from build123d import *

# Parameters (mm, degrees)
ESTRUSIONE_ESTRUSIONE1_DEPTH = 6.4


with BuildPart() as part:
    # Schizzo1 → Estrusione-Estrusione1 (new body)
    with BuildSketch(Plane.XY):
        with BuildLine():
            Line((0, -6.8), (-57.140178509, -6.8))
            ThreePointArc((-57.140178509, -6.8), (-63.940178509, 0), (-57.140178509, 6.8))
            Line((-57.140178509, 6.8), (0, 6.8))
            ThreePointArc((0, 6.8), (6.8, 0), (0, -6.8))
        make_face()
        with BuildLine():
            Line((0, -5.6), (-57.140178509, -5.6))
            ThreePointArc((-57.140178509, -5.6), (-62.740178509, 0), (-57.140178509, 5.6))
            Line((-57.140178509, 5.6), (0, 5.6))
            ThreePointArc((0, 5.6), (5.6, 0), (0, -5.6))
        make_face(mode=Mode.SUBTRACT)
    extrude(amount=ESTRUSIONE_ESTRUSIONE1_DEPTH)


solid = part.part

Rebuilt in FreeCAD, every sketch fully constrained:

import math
import FreeCAD as App
import Part
import Sketcher

V = App.Vector
Q = App.Units.Quantity

doc = App.newDocument("Part")
params = doc.addObject("Spreadsheet::Sheet", "Params")
for row, (alias, value) in enumerate([
    ("sketch1_radius", "6.8 mm"),
    ("sketch1_radius2", "5.6 mm"),
    ("pad1_length", "6.4 mm"),
], start=1):
    params.set(f"A{row}", alias)
    params.set(f"B{row}", "=" + value)
    params.setAlias(f"B{row}", alias)

body = doc.addObject("PartDesign::Body", "Body")

# Sketch on XY plane
sketch1 = body.newObject("Sketcher::SketchObject", "Sketch")
sketch1.AttachmentSupport = (doc.getObject("XY_Plane"), [""])
sketch1.MapMode = "FlatFace"
sketch1.addGeometry([
    Part.LineSegment(V(-57, -7, 0), V(0, -7, 0)),  # 0
    Part.ArcOfCircle(Part.Circle(V(0, 0, 0), V(0, 0, 1), 7), math.radians(-90), math.radians(90)),  # 1
    Part.LineSegment(V(0, 7, 0), V(-57, 7, 0)),  # 2
    Part.ArcOfCircle(Part.Circle(V(-57, 0, 0), V(0, 0, 1), 7), math.radians(90), math.radians(270)),  # 3
    Part.LineSegment(V(0, -6, 0), V(-57, -6, 0)),  # 4
    Part.ArcOfCircle(Part.Circle(V(-57, 0, 0), V(0, 0, 1), 6), math.radians(90), math.radians(270)),  # 5
    Part.LineSegment(V(-57, 6, 0), V(0, 6, 0)),  # 6
    Part.ArcOfCircle(Part.Circle(V(0, 0, 0), V(0, 0, 1), 6), math.radians(-90), math.radians(90)),  # 7
], False)
sketch1.addConstraint([
    Sketcher.Constraint("Tangent", 0, 2, 1, 1),
    Sketcher.Constraint("Tangent", 1, 2, 2, 1),
    Sketcher.Constraint("Tangent", 2, 2, 3, 1),
    Sketcher.Constraint("Tangent", 3, 2, 0, 1),
    Sketcher.Constraint("Tangent", 4, 2, 5, 2),
    Sketcher.Constraint("Tangent", 5, 1, 6, 1),
    Sketcher.Constraint("Tangent", 6, 2, 7, 2),
    Sketcher.Constraint("Tangent", 7, 1, 4, 1),
    Sketcher.Constraint("Horizontal", 0),
    Sketcher.Constraint("Horizontal", 2),
    Sketcher.Constraint("Horizontal", 4),
    Sketcher.Constraint("Horizontal", 6),
    Sketcher.Constraint("Coincident", 1, 3, -1, 1),
    Sketcher.Constraint("Coincident", 7, 3, -1, 1),
    Sketcher.Constraint("Vertical", 5, 3, 2, 2),
    Sketcher.Constraint("Radius", 1, Q("6.8 mm")),
    Sketcher.Constraint("Radius", 5, Q("5.6 mm")),
    Sketcher.Constraint("DistanceX", 0, 1, 0, 2, Q("57.140179 mm")),
])
sketch1.setExpression("Constraints[15]", "Params.sketch1_radius")
sketch1.setExpression("Constraints[16]", "Params.sketch1_radius2")
pad1 = body.newObject("PartDesign::Pad", "Pad")
pad1.Profile = sketch1
pad1.setExpression("Length", "Params.pad1_length")

doc.recompute()
